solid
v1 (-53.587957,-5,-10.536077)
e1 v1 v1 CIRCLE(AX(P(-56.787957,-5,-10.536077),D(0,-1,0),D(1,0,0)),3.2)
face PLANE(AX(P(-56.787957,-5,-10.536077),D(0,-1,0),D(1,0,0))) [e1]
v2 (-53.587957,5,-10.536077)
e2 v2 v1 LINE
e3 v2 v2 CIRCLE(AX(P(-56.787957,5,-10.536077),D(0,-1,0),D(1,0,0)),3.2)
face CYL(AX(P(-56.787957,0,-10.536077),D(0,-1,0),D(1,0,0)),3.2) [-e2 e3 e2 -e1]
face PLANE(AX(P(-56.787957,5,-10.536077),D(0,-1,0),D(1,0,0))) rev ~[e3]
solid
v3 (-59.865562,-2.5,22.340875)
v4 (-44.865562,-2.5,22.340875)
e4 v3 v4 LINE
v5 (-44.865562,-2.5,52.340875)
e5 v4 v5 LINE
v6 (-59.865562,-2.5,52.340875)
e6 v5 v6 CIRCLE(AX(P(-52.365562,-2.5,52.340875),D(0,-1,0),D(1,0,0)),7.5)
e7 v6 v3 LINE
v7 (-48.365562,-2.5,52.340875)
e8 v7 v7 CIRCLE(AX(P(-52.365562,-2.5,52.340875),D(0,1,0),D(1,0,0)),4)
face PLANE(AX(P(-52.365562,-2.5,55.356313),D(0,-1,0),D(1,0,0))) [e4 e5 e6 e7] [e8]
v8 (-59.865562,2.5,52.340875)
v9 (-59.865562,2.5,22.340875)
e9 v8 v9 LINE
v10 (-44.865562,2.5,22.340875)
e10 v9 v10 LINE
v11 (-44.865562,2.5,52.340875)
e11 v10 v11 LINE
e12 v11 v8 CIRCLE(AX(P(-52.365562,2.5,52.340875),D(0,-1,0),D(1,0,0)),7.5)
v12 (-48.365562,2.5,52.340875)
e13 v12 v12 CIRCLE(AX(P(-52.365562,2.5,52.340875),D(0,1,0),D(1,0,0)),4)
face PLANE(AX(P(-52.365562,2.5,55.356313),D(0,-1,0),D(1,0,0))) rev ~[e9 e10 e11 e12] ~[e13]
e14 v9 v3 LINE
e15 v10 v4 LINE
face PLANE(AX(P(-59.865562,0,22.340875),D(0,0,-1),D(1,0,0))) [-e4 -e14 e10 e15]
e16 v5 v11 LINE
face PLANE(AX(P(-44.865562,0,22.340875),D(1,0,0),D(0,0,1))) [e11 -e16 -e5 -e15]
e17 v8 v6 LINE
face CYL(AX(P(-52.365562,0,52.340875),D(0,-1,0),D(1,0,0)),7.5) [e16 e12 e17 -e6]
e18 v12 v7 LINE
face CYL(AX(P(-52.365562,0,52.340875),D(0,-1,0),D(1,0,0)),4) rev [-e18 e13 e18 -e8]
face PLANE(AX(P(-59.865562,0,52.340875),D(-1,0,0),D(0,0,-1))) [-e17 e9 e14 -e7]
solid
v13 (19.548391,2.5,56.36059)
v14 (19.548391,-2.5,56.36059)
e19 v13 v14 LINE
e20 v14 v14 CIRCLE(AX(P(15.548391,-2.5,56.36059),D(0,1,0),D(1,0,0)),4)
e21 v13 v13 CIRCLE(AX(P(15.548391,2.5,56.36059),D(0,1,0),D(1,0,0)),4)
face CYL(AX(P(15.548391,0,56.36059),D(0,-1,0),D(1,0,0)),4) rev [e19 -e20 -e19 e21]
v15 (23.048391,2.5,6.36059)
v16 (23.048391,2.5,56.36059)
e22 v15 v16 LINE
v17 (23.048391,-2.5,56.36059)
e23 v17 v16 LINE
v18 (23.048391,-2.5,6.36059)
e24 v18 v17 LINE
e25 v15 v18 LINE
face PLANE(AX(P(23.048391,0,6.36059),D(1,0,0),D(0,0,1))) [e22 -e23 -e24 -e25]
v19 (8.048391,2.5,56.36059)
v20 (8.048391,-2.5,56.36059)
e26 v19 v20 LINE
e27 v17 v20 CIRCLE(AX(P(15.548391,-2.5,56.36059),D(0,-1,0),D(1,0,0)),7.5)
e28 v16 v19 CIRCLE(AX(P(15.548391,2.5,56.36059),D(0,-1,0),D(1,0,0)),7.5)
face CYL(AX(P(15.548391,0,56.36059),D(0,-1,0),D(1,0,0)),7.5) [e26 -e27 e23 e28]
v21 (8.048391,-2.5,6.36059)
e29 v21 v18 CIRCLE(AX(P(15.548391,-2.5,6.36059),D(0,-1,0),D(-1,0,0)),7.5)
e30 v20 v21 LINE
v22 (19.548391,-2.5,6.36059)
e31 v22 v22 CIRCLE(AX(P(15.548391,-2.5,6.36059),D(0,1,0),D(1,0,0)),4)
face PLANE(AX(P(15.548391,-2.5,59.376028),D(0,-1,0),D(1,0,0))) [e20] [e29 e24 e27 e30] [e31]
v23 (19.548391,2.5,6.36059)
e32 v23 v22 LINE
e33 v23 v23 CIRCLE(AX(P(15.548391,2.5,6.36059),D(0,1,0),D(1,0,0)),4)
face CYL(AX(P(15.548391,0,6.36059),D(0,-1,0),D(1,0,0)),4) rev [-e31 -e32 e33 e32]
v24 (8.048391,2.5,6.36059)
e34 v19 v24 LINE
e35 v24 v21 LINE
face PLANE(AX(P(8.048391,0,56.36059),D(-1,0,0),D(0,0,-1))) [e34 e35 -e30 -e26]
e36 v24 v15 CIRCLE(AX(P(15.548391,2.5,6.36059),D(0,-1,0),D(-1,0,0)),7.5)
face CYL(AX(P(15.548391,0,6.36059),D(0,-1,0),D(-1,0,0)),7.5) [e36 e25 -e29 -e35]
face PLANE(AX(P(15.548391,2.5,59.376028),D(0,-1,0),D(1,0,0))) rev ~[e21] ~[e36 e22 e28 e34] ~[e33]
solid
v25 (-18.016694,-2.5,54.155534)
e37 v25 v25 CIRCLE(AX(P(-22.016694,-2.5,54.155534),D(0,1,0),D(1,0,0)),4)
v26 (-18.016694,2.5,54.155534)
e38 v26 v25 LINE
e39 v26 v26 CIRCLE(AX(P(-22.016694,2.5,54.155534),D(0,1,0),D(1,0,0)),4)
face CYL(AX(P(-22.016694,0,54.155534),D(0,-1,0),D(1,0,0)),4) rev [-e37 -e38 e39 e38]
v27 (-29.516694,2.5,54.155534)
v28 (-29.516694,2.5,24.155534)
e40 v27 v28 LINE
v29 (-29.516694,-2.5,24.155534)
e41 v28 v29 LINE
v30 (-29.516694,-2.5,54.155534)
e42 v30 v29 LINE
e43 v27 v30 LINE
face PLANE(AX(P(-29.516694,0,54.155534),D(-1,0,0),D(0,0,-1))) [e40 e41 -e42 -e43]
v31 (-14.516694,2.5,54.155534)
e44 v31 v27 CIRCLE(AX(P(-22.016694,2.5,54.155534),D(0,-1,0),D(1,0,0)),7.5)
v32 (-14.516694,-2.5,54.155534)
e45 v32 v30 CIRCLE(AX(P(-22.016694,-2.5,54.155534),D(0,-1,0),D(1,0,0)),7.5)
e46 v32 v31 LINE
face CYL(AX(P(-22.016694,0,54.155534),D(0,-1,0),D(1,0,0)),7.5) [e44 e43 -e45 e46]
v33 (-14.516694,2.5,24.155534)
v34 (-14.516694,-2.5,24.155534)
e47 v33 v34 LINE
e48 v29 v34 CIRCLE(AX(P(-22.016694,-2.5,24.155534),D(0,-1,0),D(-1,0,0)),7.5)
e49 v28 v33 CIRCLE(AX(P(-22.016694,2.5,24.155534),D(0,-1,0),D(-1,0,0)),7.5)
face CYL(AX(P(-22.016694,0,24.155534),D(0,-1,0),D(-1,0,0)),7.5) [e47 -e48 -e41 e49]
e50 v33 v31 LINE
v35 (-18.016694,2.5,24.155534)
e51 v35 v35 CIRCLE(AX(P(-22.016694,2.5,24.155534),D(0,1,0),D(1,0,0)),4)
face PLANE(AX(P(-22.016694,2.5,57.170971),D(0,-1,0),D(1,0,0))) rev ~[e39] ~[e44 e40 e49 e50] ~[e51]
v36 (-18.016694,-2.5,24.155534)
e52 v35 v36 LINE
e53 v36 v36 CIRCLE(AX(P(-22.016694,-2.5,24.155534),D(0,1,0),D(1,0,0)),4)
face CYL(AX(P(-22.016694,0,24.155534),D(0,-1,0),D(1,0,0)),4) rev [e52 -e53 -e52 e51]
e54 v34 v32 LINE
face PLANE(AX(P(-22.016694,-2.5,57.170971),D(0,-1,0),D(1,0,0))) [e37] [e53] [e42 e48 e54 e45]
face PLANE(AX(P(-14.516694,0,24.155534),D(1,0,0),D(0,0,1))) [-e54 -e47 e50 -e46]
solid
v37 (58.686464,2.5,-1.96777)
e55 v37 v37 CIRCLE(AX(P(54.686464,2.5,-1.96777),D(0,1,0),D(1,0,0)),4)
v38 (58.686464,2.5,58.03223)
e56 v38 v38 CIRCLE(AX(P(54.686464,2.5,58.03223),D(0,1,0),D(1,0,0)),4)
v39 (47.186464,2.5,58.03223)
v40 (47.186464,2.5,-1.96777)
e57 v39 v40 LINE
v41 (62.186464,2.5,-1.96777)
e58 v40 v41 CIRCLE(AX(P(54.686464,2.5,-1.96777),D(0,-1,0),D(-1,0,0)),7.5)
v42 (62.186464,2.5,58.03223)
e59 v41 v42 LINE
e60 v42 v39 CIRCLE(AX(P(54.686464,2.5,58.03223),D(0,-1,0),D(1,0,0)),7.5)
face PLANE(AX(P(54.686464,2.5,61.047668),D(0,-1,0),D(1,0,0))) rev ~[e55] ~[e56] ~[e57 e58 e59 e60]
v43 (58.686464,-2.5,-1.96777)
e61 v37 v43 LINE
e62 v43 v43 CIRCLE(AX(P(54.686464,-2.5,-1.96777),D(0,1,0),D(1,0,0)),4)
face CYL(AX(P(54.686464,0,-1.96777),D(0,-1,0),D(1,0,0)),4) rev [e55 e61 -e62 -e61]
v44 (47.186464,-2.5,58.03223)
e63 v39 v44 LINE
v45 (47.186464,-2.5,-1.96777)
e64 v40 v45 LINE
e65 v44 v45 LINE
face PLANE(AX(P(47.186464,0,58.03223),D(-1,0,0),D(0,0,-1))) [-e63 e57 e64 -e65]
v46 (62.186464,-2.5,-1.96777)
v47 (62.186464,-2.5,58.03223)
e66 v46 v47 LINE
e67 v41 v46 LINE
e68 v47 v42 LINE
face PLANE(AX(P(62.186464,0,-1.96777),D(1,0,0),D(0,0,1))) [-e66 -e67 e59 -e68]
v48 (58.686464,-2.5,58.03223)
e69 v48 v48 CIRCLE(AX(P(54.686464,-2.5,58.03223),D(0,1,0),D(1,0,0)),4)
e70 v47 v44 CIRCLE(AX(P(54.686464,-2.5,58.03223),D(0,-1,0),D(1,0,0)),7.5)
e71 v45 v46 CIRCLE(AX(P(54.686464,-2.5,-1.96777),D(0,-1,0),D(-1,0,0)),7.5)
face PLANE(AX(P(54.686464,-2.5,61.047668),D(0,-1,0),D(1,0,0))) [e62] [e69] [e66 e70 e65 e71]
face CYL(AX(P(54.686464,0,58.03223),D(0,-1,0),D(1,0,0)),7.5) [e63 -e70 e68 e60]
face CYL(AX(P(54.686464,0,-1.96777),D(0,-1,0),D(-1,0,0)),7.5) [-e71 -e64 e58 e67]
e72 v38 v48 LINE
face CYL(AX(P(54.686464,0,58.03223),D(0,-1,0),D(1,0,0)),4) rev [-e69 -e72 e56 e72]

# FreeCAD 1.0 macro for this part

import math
import FreeCAD as App
import Part
import Sketcher

V = App.Vector

doc = App.newDocument("Part")
params = doc.addObject("Spreadsheet::Sheet", "Params")
for row, (alias, value) in enumerate([
    ("sketch1_diameter", "8 mm"),
    ("sketch1_radius", "7.5 mm"),
    ("sketch1_height", "30 mm"),
    ("pad1_length", "5 mm"),
    ("sketch2_diameter", "8 mm"),
    ("sketch2_radius", "7.5 mm"),
    ("sketch2_height", "30 mm"),
    ("pad2_length", "5 mm"),
    ("sketch3_diameter", "8 mm"),
    ("sketch3_radius", "7.5 mm"),
    ("sketch3_height", "50 mm"),
    ("pad3_length", "5 mm"),
    ("sketch4_diameter", "8 mm"),
    ("sketch4_radius", "7.5 mm"),
    ("sketch4_height", "60 mm"),
    ("pad4_length", "5 mm"),
    ("sketch5_diameter", "6.4 mm"),
    ("pad5_length", "10 mm"),
], start=1):
    params.set(f"A{row}", alias)
    params.set(f"B{row}", "=" + value)
    params.setAlias(f"B{row}", alias)

body = doc.addObject("PartDesign::Body", "Body")

# Sketch on XZ plane
sketch1 = body.newObject("Sketcher::SketchObject", "Sketch")
sketch1.AttachmentSupport = (doc.getObject("XZ_Plane"), [""])
sketch1.MapMode = "FlatFace"
sketch1.addGeometry(Part.ArcOfCircle(Part.Circle(V(-52.365562, 52.340875, 0), V(0, 0, 1), 7.5), math.radians(0), math.radians(180)), False)
sketch1.addGeometry(Part.LineSegment(V(-59.865562, 52.340875, 0), V(-59.865562, 22.340875, 0)), False)
sketch1.addGeometry(Part.LineSegment(V(-59.865562, 22.340875, 0), V(-44.865562, 22.340875, 0)), False)
sketch1.addGeometry(Part.LineSegment(V(-44.865562, 22.340875, 0), V(-44.865562, 52.340875, 0)), False)
sketch1.addGeometry(Part.Circle(V(-52.365562, 52.340875, 0), V(0, 0, 1), 4), False)
sketch1.addConstraint(Sketcher.Constraint("Tangent", 0, 2, 1, 1))
sketch1.addConstraint(Sketcher.Constraint("Coincident", 1, 2, 2, 1))
sketch1.addConstraint(Sketcher.Constraint("Coincident", 2, 2, 3, 1))
sketch1.addConstraint(Sketcher.Constraint("Tangent", 3, 2, 0, 1))
sketch1.addConstraint(Sketcher.Constraint("Vertical", 1))
sketch1.addConstraint(Sketcher.Constraint("Horizontal", 2))
sketch1.addConstraint(Sketcher.Constraint("Vertical", 3))
sketch1.addConstraint(Sketcher.Constraint("Coincident", 4, 3, 0, 3))
sketch1.addConstraint(Sketcher.Constraint("Diameter", 4, 8.0))
sketch1.addConstraint(Sketcher.Constraint("Radius", 0, 7.5))
sketch1.addConstraint(Sketcher.Constraint("DistanceY", 1, 2, 1, 1, 30.0))
sketch1.addConstraint(Sketcher.Constraint("DistanceX", 0, 3, -1, 1, 52.365562))
sketch1.addConstraint(Sketcher.Constraint("DistanceY", -1, 1, 0, 3, 52.340875))
sketch1.setExpression("Constraints[8]", "Params.sketch1_diameter")
sketch1.setExpression("Constraints[9]", "Params.sketch1_radius")
sketch1.setExpression("Constraints[10]", "Params.sketch1_height")
pad1 = body.newObject("PartDesign::Pad", "Pad")
pad1.Profile = sketch1
pad1.setExpression("Length", "Params.pad1_length")
pad1.Midplane = True
body2 = doc.addObject("PartDesign::Body", "Body001")

# Sketch on XZ plane
sketch2 = body2.newObject("Sketcher::SketchObject", "Sketch001")
sketch2.AttachmentSupport = (doc.getObject("XZ_Plane001"), [""])
sketch2.MapMode = "FlatFace"
sketch2.addGeometry(Part.ArcOfCircle(Part.Circle(V(-22.016694, 54.155534, 0), V(0, 0, 1), 7.5), math.radians(0), math.radians(180)), False)
sketch2.addGeometry(Part.LineSegment(V(-29.516694, 54.155534, 0), V(-29.516694, 24.155534, 0)), False)
sketch2.addGeometry(Part.ArcOfCircle(Part.Circle(V(-22.016694, 24.155534, 0), V(0, 0, 1), 7.5), math.radians(180), math.radians(360)), False)
sketch2.addGeometry(Part.LineSegment(V(-14.516694, 24.155534, 0), V(-14.516694, 54.155534, 0)), False)
sketch2.addGeometry(Part.Circle(V(-22.016694, 54.155534, 0), V(0, 0, 1), 4), False)
sketch2.addGeometry(Part.Circle(V(-22.016694, 24.155534, 0), V(0, 0, 1), 4), False)
sketch2.addConstraint(Sketcher.Constraint("Tangent", 0, 2, 1, 1))
sketch2.addConstraint(Sketcher.Constraint("Tangent", 1, 2, 2, 1))
sketch2.addConstraint(Sketcher.Constraint("Tangent", 2, 2, 3, 1))
sketch2.addConstraint(Sketcher.Constraint("Tangent", 3, 2, 0, 1))
sketch2.addConstraint(Sketcher.Constraint("Vertical", 1))
sketch2.addConstraint(Sketcher.Constraint("Vertical", 3))
sketch2.addConstraint(Sketcher.Constraint("Coincident", 4, 3, 0, 3))
sketch2.addConstraint(Sketcher.Constraint("Coincident", 5, 3, 2, 3))
sketch2.addConstraint(Sketcher.Constraint("Equal", 4, 5))
sketch2.addConstraint(Sketcher.Constraint("Diameter", 4, 8.0))
sketch2.addConstraint(Sketcher.Constraint("Radius", 0, 7.5))
sketch2.addConstraint(Sketcher.Constraint("DistanceY", 1, 2, 1, 1, 30.0))
sketch2.addConstraint(Sketcher.Constraint("DistanceX", 0, 3, -1, 1, 22.016694))
sketch2.addConstraint(Sketcher.Constraint("DistanceY", -1, 1, 0, 3, 54.155534))
sketch2.setExpression("Constraints[9]", "Params.sketch2_diameter")
sketch2.setExpression("Constraints[10]", "Params.sketch2_radius")
sketch2.setExpression("Constraints[11]", "Params.sketch2_height")
pad2 = body2.newObject("PartDesign::Pad", "Pad001")
pad2.Profile = sketch2
pad2.setExpression("Length", "Params.pad2_length")
pad2.Midplane = True
body3 = doc.addObject("PartDesign::Body", "Body002")

# Sketch on XZ plane
sketch3 = body3.newObject("Sketcher::SketchObject", "Sketch002")
sketch3.AttachmentSupport = (doc.getObject("XZ_Plane002"), [""])
sketch3.MapMode = "FlatFace"
sketch3.addGeometry(Part.ArcOfCircle(Part.Circle(V(15.548391, 56.36059, 0), V(0, 0, 1), 7.5), math.radians(0), math.radians(180)), False)
sketch3.addGeometry(Part.LineSegment(V(8.048391, 56.36059, 0), V(8.048391, 6.36059, 0)), False)
sketch3.addGeometry(Part.ArcOfCircle(Part.Circle(V(15.548391, 6.36059, 0), V(0, 0, 1), 7.5), math.radians(180), math.radians(360)), False)
sketch3.addGeometry(Part.LineSegment(V(23.048391, 6.36059, 0), V(23.048391, 56.36059, 0)), False)
sketch3.addGeometry(Part.Circle(V(15.548391, 56.36059, 0), V(0, 0, 1), 4), False)
sketch3.addGeometry(Part.Circle(V(15.548391, 6.36059, 0), V(0, 0, 1), 4), False)
sketch3.addConstraint(Sketcher.Constraint("Tangent", 0, 2, 1, 1))
sketch3.addConstraint(Sketcher.Constraint("Tangent", 1, 2, 2, 1))
sketch3.addConstraint(Sketcher.Constraint("Tangent", 2, 2, 3, 1))
sketch3.addConstraint(Sketcher.Constraint("Tangent", 3, 2, 0, 1))
sketch3.addConstraint(Sketcher.Constraint("Vertical", 1))
sketch3.addConstraint(Sketcher.Constraint("Vertical", 3))
sketch3.addConstraint(Sketcher.Constraint("Coincident", 4, 3, 0, 3))
sketch3.addConstraint(Sketcher.Constraint("Coincident", 5, 3, 2, 3))
sketch3.addConstraint(Sketcher.Constraint("Equal", 4, 5))
sketch3.addConstraint(Sketcher.Constraint("Diameter", 4, 8.0))
sketch3.addConstraint(Sketcher.Constraint("Radius", 0, 7.5))
sketch3.addConstraint(Sketcher.Constraint("DistanceY", 1, 2, 1, 1, 50.0))
sketch3.addConstraint(Sketcher.Constraint("DistanceX", -1, 1, 0, 3, 15.548391))
sketch3.addConstraint(Sketcher.Constraint("DistanceY", -1, 1, 0, 3, 56.36059))
sketch3.setExpression("Constraints[9]", "Params.sketch3_diameter")
sketch3.setExpression("Constraints[10]", "Params.sketch3_radius")
sketch3.setExpression("Constraints[11]", "Params.sketch3_height")
pad3 = body3.newObject("PartDesign::Pad", "Pad002")
pad3.Profile = sketch3
pad3.setExpression("Length", "Params.pad3_length")
pad3.Midplane = True
body4 = doc.addObject("PartDesign::Body", "Body003")

# Sketch on XZ plane
sketch4 = body4.newObject("Sketcher::SketchObject", "Sketch003")
sketch4.AttachmentSupport = (doc.getObject("XZ_Plane003"), [""])
sketch4.MapMode = "FlatFace"
sketch4.addGeometry(Part.ArcOfCircle(Part.Circle(V(54.686464, 58.03223, 0), V(0, 0, 1), 7.5), math.radians(0), math.radians(180)), False)
sketch4.addGeometry(Part.LineSegment(V(47.186464, 58.03223, 0), V(47.186464, -1.96777, 0)), False)
sketch4.addGeometry(Part.ArcOfCircle(Part.Circle(V(54.686464, -1.96777, 0), V(0, 0, 1), 7.5), math.radians(180), math.radians(360)), False)
sketch4.addGeometry(Part.LineSegment(V(62.186464, -1.96777, 0), V(62.186464, 58.03223, 0)), False)
sketch4.addGeometry(Part.Circle(V(54.686464, 58.03223, 0), V(0, 0, 1), 4), False)
sketch4.addGeometry(Part.Circle(V(54.686464, -1.96777, 0), V(0, 0, 1), 4), False)
sketch4.addConstraint(Sketcher.Constraint("Tangent", 0, 2, 1, 1))
sketch4.addConstraint(Sketcher.Constraint("Tangent", 1, 2, 2, 1))
sketch4.addConstraint(Sketcher.Constraint("Tangent", 2, 2, 3, 1))
sketch4.addConstraint(Sketcher.Constraint("Tangent", 3, 2, 0, 1))
sketch4.addConstraint(Sketcher.Constraint("Vertical", 1))
sketch4.addConstraint(Sketcher.Constraint("Vertical", 3))
sketch4.addConstraint(Sketcher.Constraint("Coincident", 4, 3, 0, 3))
sketch4.addConstraint(Sketcher.Constraint("Coincident", 5, 3, 2, 3))
sketch4.addConstraint(Sketcher.Constraint("Equal", 4, 5))
sketch4.addConstraint(Sketcher.Constraint("Diameter", 4, 8.0))
sketch4.addConstraint(Sketcher.Constraint("Radius", 0, 7.5))
sketch4.addConstraint(Sketcher.Constraint("DistanceY", 1, 2, 1, 1, 60.0))
sketch4.addConstraint(Sketcher.Constraint("DistanceY", -1, 1, 0, 3, 58.03223))
sketch4.addConstraint(Sketcher.Constraint("DistanceX", -1, 1, 0, 3, 54.686464))
sketch4.setExpression("Constraints[9]", "Params.sketch4_diameter")
sketch4.setExpression("Constraints[10]", "Params.sketch4_radius")
sketch4.setExpression("Constraints[11]", "Params.sketch4_height")
pad4 = body4.newObject("PartDesign::Pad", "Pad003")
pad4.Profile = sketch4
pad4.setExpression("Length", "Params.pad4_length")
pad4.Midplane = True
body5 = doc.addObject("PartDesign::Body", "Body004")

# Sketch on XZ plane
sketch5 = body5.newObject("Sketcher::SketchObject", "Sketch004")
sketch5.AttachmentSupport = (doc.getObject("XZ_Plane004"), [""])
sketch5.MapMode = "FlatFace"
sketch5.addGeometry(Part.Circle(V(-56.787957, -10.536077, 0), V(0, 0, 1), 3.2), False)
sketch5.addConstraint(Sketcher.Constraint("Diameter", 0, 6.4))
sketch5.addConstraint(Sketcher.Constraint("DistanceX", 0, 3, -1, 1, 56.787957))
sketch5.addConstraint(Sketcher.Constraint("DistanceY", 0, 3, -1, 1, 10.536077))
sketch5.setExpression("Constraints[0]", "Params.sketch5_diameter")
pad5 = body5.newObject("PartDesign::Pad", "Pad004")
pad5.Profile = sketch5
pad5.setExpression("Length", "Params.pad5_length")
pad5.Midplane = True

doc.recompute()
